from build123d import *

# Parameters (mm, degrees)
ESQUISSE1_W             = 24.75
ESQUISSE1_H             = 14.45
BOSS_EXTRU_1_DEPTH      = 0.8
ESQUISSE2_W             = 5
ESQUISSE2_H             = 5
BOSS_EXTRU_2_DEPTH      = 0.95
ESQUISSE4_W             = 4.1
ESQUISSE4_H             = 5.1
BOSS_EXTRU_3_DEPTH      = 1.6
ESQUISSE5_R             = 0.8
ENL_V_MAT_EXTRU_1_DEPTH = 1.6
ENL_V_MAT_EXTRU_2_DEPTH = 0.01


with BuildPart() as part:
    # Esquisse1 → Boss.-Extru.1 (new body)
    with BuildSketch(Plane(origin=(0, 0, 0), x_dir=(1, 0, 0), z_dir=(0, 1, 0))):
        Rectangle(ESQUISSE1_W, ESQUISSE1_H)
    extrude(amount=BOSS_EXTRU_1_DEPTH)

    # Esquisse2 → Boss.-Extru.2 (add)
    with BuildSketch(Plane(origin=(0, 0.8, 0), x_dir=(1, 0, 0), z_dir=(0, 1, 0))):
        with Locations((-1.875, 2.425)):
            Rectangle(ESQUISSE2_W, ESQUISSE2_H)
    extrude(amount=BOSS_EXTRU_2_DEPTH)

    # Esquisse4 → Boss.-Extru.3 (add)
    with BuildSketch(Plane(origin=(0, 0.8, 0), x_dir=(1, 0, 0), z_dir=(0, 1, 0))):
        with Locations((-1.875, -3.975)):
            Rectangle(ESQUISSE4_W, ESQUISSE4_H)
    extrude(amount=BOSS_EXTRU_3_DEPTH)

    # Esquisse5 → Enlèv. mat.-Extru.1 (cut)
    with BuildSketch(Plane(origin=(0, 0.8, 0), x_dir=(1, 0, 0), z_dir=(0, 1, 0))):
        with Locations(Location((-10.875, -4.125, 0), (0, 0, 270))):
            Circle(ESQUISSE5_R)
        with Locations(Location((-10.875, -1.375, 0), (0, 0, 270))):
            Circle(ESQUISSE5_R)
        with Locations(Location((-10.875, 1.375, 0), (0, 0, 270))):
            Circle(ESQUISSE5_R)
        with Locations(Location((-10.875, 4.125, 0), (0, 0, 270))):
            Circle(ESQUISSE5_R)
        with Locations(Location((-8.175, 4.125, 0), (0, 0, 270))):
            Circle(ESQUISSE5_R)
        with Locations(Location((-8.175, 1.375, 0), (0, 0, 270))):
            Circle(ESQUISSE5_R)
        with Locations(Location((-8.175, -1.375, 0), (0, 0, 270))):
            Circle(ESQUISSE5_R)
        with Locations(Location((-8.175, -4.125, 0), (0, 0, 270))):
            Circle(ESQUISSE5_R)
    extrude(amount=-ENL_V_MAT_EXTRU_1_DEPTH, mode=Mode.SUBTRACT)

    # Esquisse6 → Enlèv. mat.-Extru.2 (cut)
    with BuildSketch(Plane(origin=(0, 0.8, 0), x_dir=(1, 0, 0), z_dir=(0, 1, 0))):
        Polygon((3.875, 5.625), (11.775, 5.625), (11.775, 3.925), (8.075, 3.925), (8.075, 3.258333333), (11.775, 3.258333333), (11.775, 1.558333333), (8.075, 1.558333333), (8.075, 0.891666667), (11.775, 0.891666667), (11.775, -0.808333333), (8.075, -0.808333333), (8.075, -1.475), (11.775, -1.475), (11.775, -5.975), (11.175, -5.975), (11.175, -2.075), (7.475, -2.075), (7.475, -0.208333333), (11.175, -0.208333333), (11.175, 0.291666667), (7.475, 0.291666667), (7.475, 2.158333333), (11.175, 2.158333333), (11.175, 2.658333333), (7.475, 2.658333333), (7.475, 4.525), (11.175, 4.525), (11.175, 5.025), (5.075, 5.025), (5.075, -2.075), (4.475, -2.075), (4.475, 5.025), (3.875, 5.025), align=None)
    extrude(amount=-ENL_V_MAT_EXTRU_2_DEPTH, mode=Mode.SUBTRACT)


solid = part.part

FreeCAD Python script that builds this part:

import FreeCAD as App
import Part
import Sketcher

V = App.Vector

doc = App.newDocument("Part")
params = doc.addObject("Spreadsheet::Sheet", "Params")
for row, (alias, value) in enumerate([
    ("sketch1_width", "24.75 mm"),
    ("sketch1_height", "14.45 mm"),
    ("pad1_length", "0.8 mm"),
    ("sketch2_width", "5 mm"),
    ("pad2_length", "0.95 mm"),
    ("sketch3_width", "4.1 mm"),
    ("sketch3_height", "5.1 mm"),
    ("pad3_length", "1.6 mm"),
    ("sketch4_diameter", "1.6 mm"),
    ("pocket1_length", "1.6 mm"),
    ("sketch5_width", "7.9 mm"),
    ("sketch5_width2", "0.6 mm"),
    ("sketch5_width3", "3.7 mm"),
    ("sketch5_height", "7.1 mm"),
    ("sketch5_height2", "0.5 mm"),
    ("pocket2_length", "0.01 mm"),
], start=1):
    params.set(f"A{row}", alias)
    params.set(f"B{row}", "=" + value)
    params.setAlias(f"B{row}", alias)

body = doc.addObject("PartDesign::Body", "Body")

sketch1 = body.newObject("Sketcher::SketchObject", "Sketch")
sketch1.AttachmentSupport = (doc.getObject("XZ_Plane"), [""])
sketch1.MapMode = "FlatFace"
sketch1.addGeometry([
    Part.LineSegment(V(-12, -7, 0), V(-12, 7, 0)),
    Part.LineSegment(V(-12, 7, 0), V(12, 7, 0)),
    Part.LineSegment(V(12, 7, 0), V(12, -7, 0)),
    Part.LineSegment(V(12, -7, 0), V(-12, -7, 0)),
], False)
sketch1.addConstraint([
    Sketcher.Constraint("Coincident", 0, 2, 1, 1),
    Sketcher.Constraint("Coincident", 1, 2, 2, 1),
    Sketcher.Constraint("Coincident", 2, 2, 3, 1),
    Sketcher.Constraint("Coincident", 3, 2, 0, 1),
    Sketcher.Constraint("Vertical", 0),
    Sketcher.Constraint("Horizontal", 1),
    Sketcher.Constraint("Vertical", 2),
    Sketcher.Constraint("Horizontal", 3),
    Sketcher.Constraint("Symmetric", 0, 2, 2, 2, -1, 1),
    Sketcher.Constraint("DistanceX", 1, 1, 1, 2, 24.75),
    Sketcher.Constraint("DistanceY", 0, 1, 0, 2, 14.45),
])
sketch1.setExpression("Constraints[9]", "Params.sketch1_width")
sketch1.setExpression("Constraints[10]", "Params.sketch1_height")
pad1 = body.newObject("PartDesign::Pad", "Pad")
pad1.Profile = sketch1
pad1.setExpression("Length", "Params.pad1_length")
pad1.Reversed = True

sketch2 = body.newObject("Sketcher::SketchObject", "Sketch001")
sketch2.AttachmentSupport = (doc.getObject("XZ_Plane"), [""])
sketch2.MapMode = "FlatFace"
sketch2.AttachmentOffset = App.Placement(V(0, 0, -0.8), App.Rotation())
sketch2.addGeometry([
    Part.LineSegment(V(-4, -5, 0), V(-4, 0, 0)),
    Part.LineSegment(V(-4, 0, 0), V(1, 0, 0)),
    Part.LineSegment(V(1, 0, 0), V(1, -5, 0)),
    Part.LineSegment(V(1, -5, 0), V(-4, -5, 0)),
], False)
sketch2.addConstraint([
    Sketcher.Constraint("Coincident", 0, 2, 1, 1),
    Sketcher.Constraint("Coincident", 1, 2, 2, 1),
    Sketcher.Constraint("Coincident", 2, 2, 3, 1),
    Sketcher.Constraint("Coincident", 3, 2, 0, 1),
    Sketcher.Constraint("Vertical", 0),
    Sketcher.Constraint("Horizontal", 1),
    Sketcher.Constraint("Vertical", 2),
    Sketcher.Constraint("Horizontal", 3),
    Sketcher.Constraint("Equal", 3, 0),
    Sketcher.Constraint("DistanceX", 1, 1, 1, 2, 5.0),
    Sketcher.Constraint("DistanceX", 0, 2, -1, 1, 4.375),
    Sketcher.Constraint("DistanceY", -1, 1, 0, 2, 0.075),
])
sketch2.setExpression("Constraints[9]", "Params.sketch2_width")
pad2 = body.newObject("PartDesign::Pad", "Pad001")
pad2.Profile = sketch2
pad2.setExpression("Length", "Params.pad2_length")
pad2.Reversed = True

sketch3 = body.newObject("Sketcher::SketchObject", "Sketch002")
sketch3.AttachmentSupport = (doc.getObject("XZ_Plane"), [""])
sketch3.MapMode = "FlatFace"
sketch3.AttachmentOffset = App.Placement(V(0, 0, -0.8), App.Rotation())
sketch3.addGeometry([
    Part.LineSegment(V(-3.9, 1.4, 0), V(-3.9, 6.5, 0)),
    Part.LineSegment(V(-3.9, 6.5, 0), V(0.2, 6.5, 0)),
    Part.LineSegment(V(0.2, 6.5, 0), V(0.2, 1.4, 0)),
    Part.LineSegment(V(0.2, 1.4, 0), V(-3.9, 1.4, 0)),
], False)
sketch3.addConstraint([
    Sketcher.Constraint("Coincident", 0, 2, 1, 1),
    Sketcher.Constraint("Coincident", 1, 2, 2, 1),
    Sketcher.Constraint("Coincident", 2, 2, 3, 1),
    Sketcher.Constraint("Coincident", 3, 2, 0, 1),
    Sketcher.Constraint("Vertical", 0),
    Sketcher.Constraint("Horizontal", 1),
    Sketcher.Constraint("Vertical", 2),
    Sketcher.Constraint("Horizontal", 3),
    Sketcher.Constraint("DistanceX", 1, 1, 1, 2, 4.1),
    Sketcher.Constraint("DistanceY", 0, 1, 0, 2, 5.1),
    Sketcher.Constraint("DistanceX", 0, 2, -1, 1, 3.925),
    Sketcher.Constraint("DistanceY", -1, 1, 0, 2, 6.525),
])
sketch3.setExpression("Constraints[8]", "Params.sketch3_width")
sketch3.setExpression("Constraints[9]", "Params.sketch3_height")
pad3 = body.newObject("PartDesign::Pad", "Pad002")
pad3.Profile = sketch3
pad3.setExpression("Length", "Params.pad3_length")
pad3.Reversed = True

sketch4 = body.newObject("Sketcher::SketchObject", "Sketch003")
sketch4.AttachmentSupport = (doc.getObject("XZ_Plane"), [""])
sketch4.MapMode = "FlatFace"
sketch4.AttachmentOffset = App.Placement(V(0, 0, -0.8), App.Rotation())
sketch4.addGeometry([
    Part.Circle(V(-10.9, 4.1, 0), V(0, 0, 1), 0.8),
    Part.Circle(V(-10.9, 1.4, 0), V(0, 0, 1), 0.8),
    Part.Circle(V(-10.9, -1.4, 0), V(0, 0, 1), 0.8),
    Part.Circle(V(-10.9, -4.1, 0), V(0, 0, 1), 0.8),
    Part.Circle(V(-8.2, -4.1, 0), V(0, 0, 1), 0.8),
    Part.Circle(V(-8.2, -1.4, 0), V(0, 0, 1), 0.8),
    Part.Circle(V(-8.2, 1.4, 0), V(0, 0, 1), 0.8),
    Part.Circle(V(-8.2, 4.1, 0), V(0, 0, 1), 0.8),
], False)
sketch4.addConstraint([
    Sketcher.Constraint("Equal", 0, 1),
    Sketcher.Constraint("Equal", 1, 2),
    Sketcher.Constraint("Equal", 2, 3),
    Sketcher.Constraint("Equal", 3, 4),
    Sketcher.Constraint("Equal", 4, 5),
    Sketcher.Constraint("Equal", 5, 6),
    Sketcher.Constraint("Equal", 6, 7),
    Sketcher.Constraint("Symmetric", 1, 3, 2, 3, -1),
    Sketcher.Constraint("Symmetric", 0, 3, 3, 3, -1),
    Sketcher.Constraint("Symmetric", 5, 3, 6, 3, -1),
    Sketcher.Constraint("Symmetric", 4, 3, 7, 3, -1),
    Sketcher.Constraint("Horizontal", 3, 3, 4, 3),
    Sketcher.Constraint("Horizontal", 2, 3, 5, 3),
    Sketcher.Constraint("Vertical", 0, 3, 1, 3),
    Sketcher.Constraint("Vertical", 4, 3, 5, 3),
    Sketcher.Constraint("Diameter", 0, 1.6),
    Sketcher.Constraint("DistanceY", 2, 3, 0, 3, 5.5),
    Sketcher.Constraint("DistanceX", 3, 3, 4, 3, 2.7),
    Sketcher.Constraint("DistanceY", 1, 3, 0, 3, 2.75),
    Sketcher.Constraint("DistanceX", 0, 3, -1, 1, 10.875),
])
sketch4.setExpression("Constraints[15]", "Params.sketch4_diameter")
pocket1 = body.newObject("PartDesign::Pocket", "Pocket")
pocket1.Profile = sketch4
pocket1.setExpression("Length", "Params.pocket1_length")
pocket1.Reversed = True

sketch5 = body.newObject("Sketcher::SketchObject", "Sketch004")
sketch5.AttachmentSupport = (doc.getObject("XZ_Plane"), [""])
sketch5.MapMode = "FlatFace"
sketch5.AttachmentOffset = App.Placement(V(0, 0, -0.8), App.Rotation())
sketch5.addGeometry([
    Part.LineSegment(V(11.8, -5.6, 0), V(3.9, -5.6, 0)),
    Part.LineSegment(V(3.9, -5.6, 0), V(3.9, -5, 0)),
    Part.LineSegment(V(3.9, -5, 0), V(4.5, -5, 0)),
    Part.LineSegment(V(4.5, -5, 0), V(4.5, 2.1, 0)),
    Part.LineSegment(V(4.5, 2.1, 0), V(5.1, 2.1, 0)),
    Part.LineSegment(V(5.1, 2.1, 0), V(5.1, -5, 0)),
    Part.LineSegment(V(5.1, -5, 0), V(11.2, -5, 0)),
    Part.LineSegment(V(11.2, -5, 0), V(11.2, -4.5, 0)),
    Part.LineSegment(V(11.2, -4.5, 0), V(7.5, -4.5, 0)),
    Part.LineSegment(V(7.5, -4.5, 0), V(7.5, -2.7, 0)),
    Part.LineSegment(V(7.5, -2.7, 0), V(11.2, -2.7, 0)),
    Part.LineSegment(V(11.2, -2.7, 0), V(11.2, -2.2, 0)),
    Part.LineSegment(V(11.2, -2.2, 0), V(7.5, -2.2, 0)),
    Part.LineSegment(V(7.5, -2.2, 0), V(7.5, -0.3, 0)),
    Part.LineSegment(V(7.5, -0.3, 0), V(11.2, -0.3, 0)),
    Part.LineSegment(V(11.2, -0.3, 0), V(11.2, 0.2, 0)),
    Part.LineSegment(V(11.2, 0.2, 0), V(7.5, 0.2, 0)),
    Part.LineSegment(V(7.5, 0.2, 0), V(7.5, 2.1, 0)),
    Part.LineSegment(V(7.5, 2.1, 0), V(11.2, 2.1, 0)),
    Part.LineSegment(V(11.2, 2.1, 0), V(11.2, 6, 0)),
    Part.LineSegment(V(11.2, 6, 0), V(11.8, 6, 0)),
    Part.LineSegment(V(11.8, 6, 0), V(11.8, 1.5, 0)),
    Part.LineSegment(V(11.8, 1.5, 0), V(8.1, 1.5, 0)),
    Part.LineSegment(V(8.1, 1.5, 0), V(8.1, 0.8, 0)),
    Part.LineSegment(V(8.1, 0.8, 0), V(11.8, 0.8, 0)),
    Part.LineSegment(V(11.8, 0.8, 0), V(11.8, -0.9, 0)),
    Part.LineSegment(V(11.8, -0.9, 0), V(8.1, -0.9, 0)),
    Part.LineSegment(V(8.1, -0.9, 0), V(8.1, -1.6, 0)),
    Part.LineSegment(V(8.1, -1.6, 0), V(11.8, -1.6, 0)),
    Part.LineSegment(V(11.8, -1.6, 0), V(11.8, -3.3, 0)),
    Part.LineSegment(V(11.8, -3.3, 0), V(8.1, -3.3, 0)),
    Part.LineSegment(V(8.1, -3.3, 0), V(8.1, -3.9, 0)),
    Part.LineSegment(V(8.1, -3.9, 0), V(11.8, -3.9, 0)),
    Part.LineSegment(V(11.8, -3.9, 0), V(11.8, -5.6, 0)),
], False)
sketch5.addConstraint([
    Sketcher.Constraint("Coincident", 0, 2, 1, 1),
    Sketcher.Constraint("Coincident", 1, 2, 2, 1),
    Sketcher.Constraint("Coincident", 2, 2, 3, 1),
    Sketcher.Constraint("Coincident", 3, 2, 4, 1),
    Sketcher.Constraint("Coincident", 4, 2, 5, 1),
    Sketcher.Constraint("Coincident", 5, 2, 6, 1),
    Sketcher.Constraint("Coincident", 6, 2, 7, 1),
    Sketcher.Constraint("Coincident", 7, 2, 8, 1),
    Sketcher.Constraint("Coincident", 8, 2, 9, 1),
    Sketcher.Constraint("Coincident", 9, 2, 10, 1),
    Sketcher.Constraint("Coincident", 10, 2, 11, 1),
    Sketcher.Constraint("Coincident", 11, 2, 12, 1),
    Sketcher.Constraint("Coincident", 12, 2, 13, 1),
    Sketcher.Constraint("Coincident", 13, 2, 14, 1),
    Sketcher.Constraint("Coincident", 14, 2, 15, 1),
    Sketcher.Constraint("Coincident", 15, 2, 16, 1),
    Sketcher.Constraint("Coincident", 16, 2, 17, 1),
    Sketcher.Constraint("Coincident", 17, 2, 18, 1),
    Sketcher.Constraint("Coincident", 18, 2, 19, 1),
    Sketcher.Constraint("Coincident", 19, 2, 20, 1),
    Sketcher.Constraint("Coincident", 20, 2, 21, 1),
    Sketcher.Constraint("Coincident", 21, 2, 22, 1),
    Sketcher.Constraint("Coincident", 22, 2, 23, 1),
    Sketcher.Constraint("Coincident", 23, 2, 24, 1),
    Sketcher.Constraint("Coincident", 24, 2, 25, 1),
    Sketcher.Constraint("Coincident", 25, 2, 26, 1),
    Sketcher.Constraint("Coincident", 26, 2, 27, 1),
    Sketcher.Constraint("Coincident", 27, 2, 28, 1),
    Sketcher.Constraint("Coincident", 28, 2, 29, 1),
    Sketcher.Constraint("Coincident", 29, 2, 30, 1),
    Sketcher.Constraint("Coincident", 30, 2, 31, 1),
    Sketcher.Constraint("Coincident", 31, 2, 32, 1),
    Sketcher.Constraint("Coincident", 32, 2, 33, 1),
    Sketcher.Constraint("Coincident", 33, 2, 0, 1),
    Sketcher.Constraint("Horizontal", 0),
    Sketcher.Constraint("Vertical", 1),
    Sketcher.Constraint("Horizontal", 2),
    Sketcher.Constraint("Vertical", 3),
    Sketcher.Constraint("Horizontal", 4),
    Sketcher.Constraint("Vertical", 5),
    Sketcher.Constraint("Horizontal", 6),
    Sketcher.Constraint("Vertical", 7),
    Sketcher.Constraint("Horizontal", 8),
    Sketcher.Constraint("Vertical", 9),
    Sketcher.Constraint("Horizontal", 10),
    Sketcher.Constraint("Vertical", 11),
    Sketcher.Constraint("Horizontal", 12),
    Sketcher.Constraint("Vertical", 13),
    Sketcher.Constraint("Horizontal", 14),
    Sketcher.Constraint("Vertical", 15),
    Sketcher.Constraint("Horizontal", 16),
    Sketcher.Constraint("Vertical", 17),
    Sketcher.Constraint("Horizontal", 18),
    Sketcher.Constraint("Vertical", 19),
    Sketcher.Constraint("Horizontal", 20),
    Sketcher.Constraint("Vertical", 21),
    Sketcher.Constraint("Horizontal", 22),
    Sketcher.Constraint("Vertical", 23),
    Sketcher.Constraint("Horizontal", 24),
    Sketcher.Constraint("Vertical", 25),
    Sketcher.Constraint("Horizontal", 26),
    Sketcher.Constraint("Vertical", 27),
    Sketcher.Constraint("Horizontal", 28),
    Sketcher.Constraint("Vertical", 29),
    Sketcher.Constraint("Horizontal", 30),
    Sketcher.Constraint("Vertical", 31),
    Sketcher.Constraint("Horizontal", 32),
    Sketcher.Constraint("Vertical", 33),
    Sketcher.Constraint("Horizontal", 2, 2, 5, 2),
    Sketcher.Constraint("Horizontal", 4, 2, 17, 2),
    Sketcher.Constraint("Vertical", 7, 2, 10, 2),
    Sketcher.Constraint("Vertical", 9, 2, 12, 2),
    Sketcher.Constraint("Vertical", 11, 2, 14, 2),
    Sketcher.Constraint("Vertical", 13, 2, 16, 2),
    Sketcher.Constraint("Vertical", 15, 2, 18, 2),
    Sketcher.Constraint("Vertical", 21, 2, 24, 2),
    Sketcher.Constraint("Vertical", 23, 2, 26, 2),
    Sketcher.Constraint("Vertical", 25, 2, 28, 2),
    Sketcher.Constraint("Vertical", 27, 2, 30, 2),
    Sketcher.Constraint("Vertical", 29, 2, 32, 2),
    Sketcher.Constraint("Equal", 2, 4),
    Sketcher.Constraint("Equal", 4, 20),
    Sketcher.Constraint("Equal", 18, 22),
    Sketcher.Constraint("Equal", 20, 1),
    Sketcher.Constraint("Equal", 7, 11),
    Sketcher.Constraint("Equal", 9, 13),
    Sketcher.Constraint("Equal", 11, 15),
    Sketcher.Constraint("Equal", 13, 17),
    Sketcher.Constraint("Equal", 23, 27),
    Sketcher.Constraint("Equal", 25, 29),
    Sketcher.Constraint("Equal", 27, 31),
    Sketcher.Constraint("Equal", 29, 33),
    Sketcher.Constraint("DistanceX", 0, 2, 0, 1, 7.9),
    Sketcher.Constraint("DistanceX", 2, 1, 2, 2, 0.6),
    Sketcher.Constraint("DistanceX", 8, 2, 8, 1, 3.7),
    Sketcher.Constraint("DistanceY", 3, 1, 3, 2, 7.1),
    Sketcher.Constraint("DistanceY", 7, 1, 7, 2, 0.5),
    Sketcher.Constraint("DistanceY", 19, 1, 19, 2, 3.9),
    Sketcher.Constraint("DistanceY", 21, 2, 21, 1, 4.5),
    Sketcher.Constraint("DistanceY", 25, 2, 25, 1, 1.7),
    Sketcher.Constraint("DistanceX", -1, 1, 0, 2, 3.875),
    Sketcher.Constraint("DistanceY", 0, 2, -1, 1, 5.625),
])
sketch5.setExpression("Constraints[92]", "Params.sketch5_width")
sketch5.setExpression("Constraints[93]", "Params.sketch5_width2")
sketch5.setExpression("Constraints[94]", "Params.sketch5_width3")
sketch5.setExpression("Constraints[95]", "Params.sketch5_height")
sketch5.setExpression("Constraints[96]", "Params.sketch5_height2")
pocket2 = body.newObject("PartDesign::Pocket", "Pocket001")
pocket2.Profile = sketch5
pocket2.setExpression("Length", "Params.pocket2_length")
pocket2.Reversed = True

doc.recompute()
